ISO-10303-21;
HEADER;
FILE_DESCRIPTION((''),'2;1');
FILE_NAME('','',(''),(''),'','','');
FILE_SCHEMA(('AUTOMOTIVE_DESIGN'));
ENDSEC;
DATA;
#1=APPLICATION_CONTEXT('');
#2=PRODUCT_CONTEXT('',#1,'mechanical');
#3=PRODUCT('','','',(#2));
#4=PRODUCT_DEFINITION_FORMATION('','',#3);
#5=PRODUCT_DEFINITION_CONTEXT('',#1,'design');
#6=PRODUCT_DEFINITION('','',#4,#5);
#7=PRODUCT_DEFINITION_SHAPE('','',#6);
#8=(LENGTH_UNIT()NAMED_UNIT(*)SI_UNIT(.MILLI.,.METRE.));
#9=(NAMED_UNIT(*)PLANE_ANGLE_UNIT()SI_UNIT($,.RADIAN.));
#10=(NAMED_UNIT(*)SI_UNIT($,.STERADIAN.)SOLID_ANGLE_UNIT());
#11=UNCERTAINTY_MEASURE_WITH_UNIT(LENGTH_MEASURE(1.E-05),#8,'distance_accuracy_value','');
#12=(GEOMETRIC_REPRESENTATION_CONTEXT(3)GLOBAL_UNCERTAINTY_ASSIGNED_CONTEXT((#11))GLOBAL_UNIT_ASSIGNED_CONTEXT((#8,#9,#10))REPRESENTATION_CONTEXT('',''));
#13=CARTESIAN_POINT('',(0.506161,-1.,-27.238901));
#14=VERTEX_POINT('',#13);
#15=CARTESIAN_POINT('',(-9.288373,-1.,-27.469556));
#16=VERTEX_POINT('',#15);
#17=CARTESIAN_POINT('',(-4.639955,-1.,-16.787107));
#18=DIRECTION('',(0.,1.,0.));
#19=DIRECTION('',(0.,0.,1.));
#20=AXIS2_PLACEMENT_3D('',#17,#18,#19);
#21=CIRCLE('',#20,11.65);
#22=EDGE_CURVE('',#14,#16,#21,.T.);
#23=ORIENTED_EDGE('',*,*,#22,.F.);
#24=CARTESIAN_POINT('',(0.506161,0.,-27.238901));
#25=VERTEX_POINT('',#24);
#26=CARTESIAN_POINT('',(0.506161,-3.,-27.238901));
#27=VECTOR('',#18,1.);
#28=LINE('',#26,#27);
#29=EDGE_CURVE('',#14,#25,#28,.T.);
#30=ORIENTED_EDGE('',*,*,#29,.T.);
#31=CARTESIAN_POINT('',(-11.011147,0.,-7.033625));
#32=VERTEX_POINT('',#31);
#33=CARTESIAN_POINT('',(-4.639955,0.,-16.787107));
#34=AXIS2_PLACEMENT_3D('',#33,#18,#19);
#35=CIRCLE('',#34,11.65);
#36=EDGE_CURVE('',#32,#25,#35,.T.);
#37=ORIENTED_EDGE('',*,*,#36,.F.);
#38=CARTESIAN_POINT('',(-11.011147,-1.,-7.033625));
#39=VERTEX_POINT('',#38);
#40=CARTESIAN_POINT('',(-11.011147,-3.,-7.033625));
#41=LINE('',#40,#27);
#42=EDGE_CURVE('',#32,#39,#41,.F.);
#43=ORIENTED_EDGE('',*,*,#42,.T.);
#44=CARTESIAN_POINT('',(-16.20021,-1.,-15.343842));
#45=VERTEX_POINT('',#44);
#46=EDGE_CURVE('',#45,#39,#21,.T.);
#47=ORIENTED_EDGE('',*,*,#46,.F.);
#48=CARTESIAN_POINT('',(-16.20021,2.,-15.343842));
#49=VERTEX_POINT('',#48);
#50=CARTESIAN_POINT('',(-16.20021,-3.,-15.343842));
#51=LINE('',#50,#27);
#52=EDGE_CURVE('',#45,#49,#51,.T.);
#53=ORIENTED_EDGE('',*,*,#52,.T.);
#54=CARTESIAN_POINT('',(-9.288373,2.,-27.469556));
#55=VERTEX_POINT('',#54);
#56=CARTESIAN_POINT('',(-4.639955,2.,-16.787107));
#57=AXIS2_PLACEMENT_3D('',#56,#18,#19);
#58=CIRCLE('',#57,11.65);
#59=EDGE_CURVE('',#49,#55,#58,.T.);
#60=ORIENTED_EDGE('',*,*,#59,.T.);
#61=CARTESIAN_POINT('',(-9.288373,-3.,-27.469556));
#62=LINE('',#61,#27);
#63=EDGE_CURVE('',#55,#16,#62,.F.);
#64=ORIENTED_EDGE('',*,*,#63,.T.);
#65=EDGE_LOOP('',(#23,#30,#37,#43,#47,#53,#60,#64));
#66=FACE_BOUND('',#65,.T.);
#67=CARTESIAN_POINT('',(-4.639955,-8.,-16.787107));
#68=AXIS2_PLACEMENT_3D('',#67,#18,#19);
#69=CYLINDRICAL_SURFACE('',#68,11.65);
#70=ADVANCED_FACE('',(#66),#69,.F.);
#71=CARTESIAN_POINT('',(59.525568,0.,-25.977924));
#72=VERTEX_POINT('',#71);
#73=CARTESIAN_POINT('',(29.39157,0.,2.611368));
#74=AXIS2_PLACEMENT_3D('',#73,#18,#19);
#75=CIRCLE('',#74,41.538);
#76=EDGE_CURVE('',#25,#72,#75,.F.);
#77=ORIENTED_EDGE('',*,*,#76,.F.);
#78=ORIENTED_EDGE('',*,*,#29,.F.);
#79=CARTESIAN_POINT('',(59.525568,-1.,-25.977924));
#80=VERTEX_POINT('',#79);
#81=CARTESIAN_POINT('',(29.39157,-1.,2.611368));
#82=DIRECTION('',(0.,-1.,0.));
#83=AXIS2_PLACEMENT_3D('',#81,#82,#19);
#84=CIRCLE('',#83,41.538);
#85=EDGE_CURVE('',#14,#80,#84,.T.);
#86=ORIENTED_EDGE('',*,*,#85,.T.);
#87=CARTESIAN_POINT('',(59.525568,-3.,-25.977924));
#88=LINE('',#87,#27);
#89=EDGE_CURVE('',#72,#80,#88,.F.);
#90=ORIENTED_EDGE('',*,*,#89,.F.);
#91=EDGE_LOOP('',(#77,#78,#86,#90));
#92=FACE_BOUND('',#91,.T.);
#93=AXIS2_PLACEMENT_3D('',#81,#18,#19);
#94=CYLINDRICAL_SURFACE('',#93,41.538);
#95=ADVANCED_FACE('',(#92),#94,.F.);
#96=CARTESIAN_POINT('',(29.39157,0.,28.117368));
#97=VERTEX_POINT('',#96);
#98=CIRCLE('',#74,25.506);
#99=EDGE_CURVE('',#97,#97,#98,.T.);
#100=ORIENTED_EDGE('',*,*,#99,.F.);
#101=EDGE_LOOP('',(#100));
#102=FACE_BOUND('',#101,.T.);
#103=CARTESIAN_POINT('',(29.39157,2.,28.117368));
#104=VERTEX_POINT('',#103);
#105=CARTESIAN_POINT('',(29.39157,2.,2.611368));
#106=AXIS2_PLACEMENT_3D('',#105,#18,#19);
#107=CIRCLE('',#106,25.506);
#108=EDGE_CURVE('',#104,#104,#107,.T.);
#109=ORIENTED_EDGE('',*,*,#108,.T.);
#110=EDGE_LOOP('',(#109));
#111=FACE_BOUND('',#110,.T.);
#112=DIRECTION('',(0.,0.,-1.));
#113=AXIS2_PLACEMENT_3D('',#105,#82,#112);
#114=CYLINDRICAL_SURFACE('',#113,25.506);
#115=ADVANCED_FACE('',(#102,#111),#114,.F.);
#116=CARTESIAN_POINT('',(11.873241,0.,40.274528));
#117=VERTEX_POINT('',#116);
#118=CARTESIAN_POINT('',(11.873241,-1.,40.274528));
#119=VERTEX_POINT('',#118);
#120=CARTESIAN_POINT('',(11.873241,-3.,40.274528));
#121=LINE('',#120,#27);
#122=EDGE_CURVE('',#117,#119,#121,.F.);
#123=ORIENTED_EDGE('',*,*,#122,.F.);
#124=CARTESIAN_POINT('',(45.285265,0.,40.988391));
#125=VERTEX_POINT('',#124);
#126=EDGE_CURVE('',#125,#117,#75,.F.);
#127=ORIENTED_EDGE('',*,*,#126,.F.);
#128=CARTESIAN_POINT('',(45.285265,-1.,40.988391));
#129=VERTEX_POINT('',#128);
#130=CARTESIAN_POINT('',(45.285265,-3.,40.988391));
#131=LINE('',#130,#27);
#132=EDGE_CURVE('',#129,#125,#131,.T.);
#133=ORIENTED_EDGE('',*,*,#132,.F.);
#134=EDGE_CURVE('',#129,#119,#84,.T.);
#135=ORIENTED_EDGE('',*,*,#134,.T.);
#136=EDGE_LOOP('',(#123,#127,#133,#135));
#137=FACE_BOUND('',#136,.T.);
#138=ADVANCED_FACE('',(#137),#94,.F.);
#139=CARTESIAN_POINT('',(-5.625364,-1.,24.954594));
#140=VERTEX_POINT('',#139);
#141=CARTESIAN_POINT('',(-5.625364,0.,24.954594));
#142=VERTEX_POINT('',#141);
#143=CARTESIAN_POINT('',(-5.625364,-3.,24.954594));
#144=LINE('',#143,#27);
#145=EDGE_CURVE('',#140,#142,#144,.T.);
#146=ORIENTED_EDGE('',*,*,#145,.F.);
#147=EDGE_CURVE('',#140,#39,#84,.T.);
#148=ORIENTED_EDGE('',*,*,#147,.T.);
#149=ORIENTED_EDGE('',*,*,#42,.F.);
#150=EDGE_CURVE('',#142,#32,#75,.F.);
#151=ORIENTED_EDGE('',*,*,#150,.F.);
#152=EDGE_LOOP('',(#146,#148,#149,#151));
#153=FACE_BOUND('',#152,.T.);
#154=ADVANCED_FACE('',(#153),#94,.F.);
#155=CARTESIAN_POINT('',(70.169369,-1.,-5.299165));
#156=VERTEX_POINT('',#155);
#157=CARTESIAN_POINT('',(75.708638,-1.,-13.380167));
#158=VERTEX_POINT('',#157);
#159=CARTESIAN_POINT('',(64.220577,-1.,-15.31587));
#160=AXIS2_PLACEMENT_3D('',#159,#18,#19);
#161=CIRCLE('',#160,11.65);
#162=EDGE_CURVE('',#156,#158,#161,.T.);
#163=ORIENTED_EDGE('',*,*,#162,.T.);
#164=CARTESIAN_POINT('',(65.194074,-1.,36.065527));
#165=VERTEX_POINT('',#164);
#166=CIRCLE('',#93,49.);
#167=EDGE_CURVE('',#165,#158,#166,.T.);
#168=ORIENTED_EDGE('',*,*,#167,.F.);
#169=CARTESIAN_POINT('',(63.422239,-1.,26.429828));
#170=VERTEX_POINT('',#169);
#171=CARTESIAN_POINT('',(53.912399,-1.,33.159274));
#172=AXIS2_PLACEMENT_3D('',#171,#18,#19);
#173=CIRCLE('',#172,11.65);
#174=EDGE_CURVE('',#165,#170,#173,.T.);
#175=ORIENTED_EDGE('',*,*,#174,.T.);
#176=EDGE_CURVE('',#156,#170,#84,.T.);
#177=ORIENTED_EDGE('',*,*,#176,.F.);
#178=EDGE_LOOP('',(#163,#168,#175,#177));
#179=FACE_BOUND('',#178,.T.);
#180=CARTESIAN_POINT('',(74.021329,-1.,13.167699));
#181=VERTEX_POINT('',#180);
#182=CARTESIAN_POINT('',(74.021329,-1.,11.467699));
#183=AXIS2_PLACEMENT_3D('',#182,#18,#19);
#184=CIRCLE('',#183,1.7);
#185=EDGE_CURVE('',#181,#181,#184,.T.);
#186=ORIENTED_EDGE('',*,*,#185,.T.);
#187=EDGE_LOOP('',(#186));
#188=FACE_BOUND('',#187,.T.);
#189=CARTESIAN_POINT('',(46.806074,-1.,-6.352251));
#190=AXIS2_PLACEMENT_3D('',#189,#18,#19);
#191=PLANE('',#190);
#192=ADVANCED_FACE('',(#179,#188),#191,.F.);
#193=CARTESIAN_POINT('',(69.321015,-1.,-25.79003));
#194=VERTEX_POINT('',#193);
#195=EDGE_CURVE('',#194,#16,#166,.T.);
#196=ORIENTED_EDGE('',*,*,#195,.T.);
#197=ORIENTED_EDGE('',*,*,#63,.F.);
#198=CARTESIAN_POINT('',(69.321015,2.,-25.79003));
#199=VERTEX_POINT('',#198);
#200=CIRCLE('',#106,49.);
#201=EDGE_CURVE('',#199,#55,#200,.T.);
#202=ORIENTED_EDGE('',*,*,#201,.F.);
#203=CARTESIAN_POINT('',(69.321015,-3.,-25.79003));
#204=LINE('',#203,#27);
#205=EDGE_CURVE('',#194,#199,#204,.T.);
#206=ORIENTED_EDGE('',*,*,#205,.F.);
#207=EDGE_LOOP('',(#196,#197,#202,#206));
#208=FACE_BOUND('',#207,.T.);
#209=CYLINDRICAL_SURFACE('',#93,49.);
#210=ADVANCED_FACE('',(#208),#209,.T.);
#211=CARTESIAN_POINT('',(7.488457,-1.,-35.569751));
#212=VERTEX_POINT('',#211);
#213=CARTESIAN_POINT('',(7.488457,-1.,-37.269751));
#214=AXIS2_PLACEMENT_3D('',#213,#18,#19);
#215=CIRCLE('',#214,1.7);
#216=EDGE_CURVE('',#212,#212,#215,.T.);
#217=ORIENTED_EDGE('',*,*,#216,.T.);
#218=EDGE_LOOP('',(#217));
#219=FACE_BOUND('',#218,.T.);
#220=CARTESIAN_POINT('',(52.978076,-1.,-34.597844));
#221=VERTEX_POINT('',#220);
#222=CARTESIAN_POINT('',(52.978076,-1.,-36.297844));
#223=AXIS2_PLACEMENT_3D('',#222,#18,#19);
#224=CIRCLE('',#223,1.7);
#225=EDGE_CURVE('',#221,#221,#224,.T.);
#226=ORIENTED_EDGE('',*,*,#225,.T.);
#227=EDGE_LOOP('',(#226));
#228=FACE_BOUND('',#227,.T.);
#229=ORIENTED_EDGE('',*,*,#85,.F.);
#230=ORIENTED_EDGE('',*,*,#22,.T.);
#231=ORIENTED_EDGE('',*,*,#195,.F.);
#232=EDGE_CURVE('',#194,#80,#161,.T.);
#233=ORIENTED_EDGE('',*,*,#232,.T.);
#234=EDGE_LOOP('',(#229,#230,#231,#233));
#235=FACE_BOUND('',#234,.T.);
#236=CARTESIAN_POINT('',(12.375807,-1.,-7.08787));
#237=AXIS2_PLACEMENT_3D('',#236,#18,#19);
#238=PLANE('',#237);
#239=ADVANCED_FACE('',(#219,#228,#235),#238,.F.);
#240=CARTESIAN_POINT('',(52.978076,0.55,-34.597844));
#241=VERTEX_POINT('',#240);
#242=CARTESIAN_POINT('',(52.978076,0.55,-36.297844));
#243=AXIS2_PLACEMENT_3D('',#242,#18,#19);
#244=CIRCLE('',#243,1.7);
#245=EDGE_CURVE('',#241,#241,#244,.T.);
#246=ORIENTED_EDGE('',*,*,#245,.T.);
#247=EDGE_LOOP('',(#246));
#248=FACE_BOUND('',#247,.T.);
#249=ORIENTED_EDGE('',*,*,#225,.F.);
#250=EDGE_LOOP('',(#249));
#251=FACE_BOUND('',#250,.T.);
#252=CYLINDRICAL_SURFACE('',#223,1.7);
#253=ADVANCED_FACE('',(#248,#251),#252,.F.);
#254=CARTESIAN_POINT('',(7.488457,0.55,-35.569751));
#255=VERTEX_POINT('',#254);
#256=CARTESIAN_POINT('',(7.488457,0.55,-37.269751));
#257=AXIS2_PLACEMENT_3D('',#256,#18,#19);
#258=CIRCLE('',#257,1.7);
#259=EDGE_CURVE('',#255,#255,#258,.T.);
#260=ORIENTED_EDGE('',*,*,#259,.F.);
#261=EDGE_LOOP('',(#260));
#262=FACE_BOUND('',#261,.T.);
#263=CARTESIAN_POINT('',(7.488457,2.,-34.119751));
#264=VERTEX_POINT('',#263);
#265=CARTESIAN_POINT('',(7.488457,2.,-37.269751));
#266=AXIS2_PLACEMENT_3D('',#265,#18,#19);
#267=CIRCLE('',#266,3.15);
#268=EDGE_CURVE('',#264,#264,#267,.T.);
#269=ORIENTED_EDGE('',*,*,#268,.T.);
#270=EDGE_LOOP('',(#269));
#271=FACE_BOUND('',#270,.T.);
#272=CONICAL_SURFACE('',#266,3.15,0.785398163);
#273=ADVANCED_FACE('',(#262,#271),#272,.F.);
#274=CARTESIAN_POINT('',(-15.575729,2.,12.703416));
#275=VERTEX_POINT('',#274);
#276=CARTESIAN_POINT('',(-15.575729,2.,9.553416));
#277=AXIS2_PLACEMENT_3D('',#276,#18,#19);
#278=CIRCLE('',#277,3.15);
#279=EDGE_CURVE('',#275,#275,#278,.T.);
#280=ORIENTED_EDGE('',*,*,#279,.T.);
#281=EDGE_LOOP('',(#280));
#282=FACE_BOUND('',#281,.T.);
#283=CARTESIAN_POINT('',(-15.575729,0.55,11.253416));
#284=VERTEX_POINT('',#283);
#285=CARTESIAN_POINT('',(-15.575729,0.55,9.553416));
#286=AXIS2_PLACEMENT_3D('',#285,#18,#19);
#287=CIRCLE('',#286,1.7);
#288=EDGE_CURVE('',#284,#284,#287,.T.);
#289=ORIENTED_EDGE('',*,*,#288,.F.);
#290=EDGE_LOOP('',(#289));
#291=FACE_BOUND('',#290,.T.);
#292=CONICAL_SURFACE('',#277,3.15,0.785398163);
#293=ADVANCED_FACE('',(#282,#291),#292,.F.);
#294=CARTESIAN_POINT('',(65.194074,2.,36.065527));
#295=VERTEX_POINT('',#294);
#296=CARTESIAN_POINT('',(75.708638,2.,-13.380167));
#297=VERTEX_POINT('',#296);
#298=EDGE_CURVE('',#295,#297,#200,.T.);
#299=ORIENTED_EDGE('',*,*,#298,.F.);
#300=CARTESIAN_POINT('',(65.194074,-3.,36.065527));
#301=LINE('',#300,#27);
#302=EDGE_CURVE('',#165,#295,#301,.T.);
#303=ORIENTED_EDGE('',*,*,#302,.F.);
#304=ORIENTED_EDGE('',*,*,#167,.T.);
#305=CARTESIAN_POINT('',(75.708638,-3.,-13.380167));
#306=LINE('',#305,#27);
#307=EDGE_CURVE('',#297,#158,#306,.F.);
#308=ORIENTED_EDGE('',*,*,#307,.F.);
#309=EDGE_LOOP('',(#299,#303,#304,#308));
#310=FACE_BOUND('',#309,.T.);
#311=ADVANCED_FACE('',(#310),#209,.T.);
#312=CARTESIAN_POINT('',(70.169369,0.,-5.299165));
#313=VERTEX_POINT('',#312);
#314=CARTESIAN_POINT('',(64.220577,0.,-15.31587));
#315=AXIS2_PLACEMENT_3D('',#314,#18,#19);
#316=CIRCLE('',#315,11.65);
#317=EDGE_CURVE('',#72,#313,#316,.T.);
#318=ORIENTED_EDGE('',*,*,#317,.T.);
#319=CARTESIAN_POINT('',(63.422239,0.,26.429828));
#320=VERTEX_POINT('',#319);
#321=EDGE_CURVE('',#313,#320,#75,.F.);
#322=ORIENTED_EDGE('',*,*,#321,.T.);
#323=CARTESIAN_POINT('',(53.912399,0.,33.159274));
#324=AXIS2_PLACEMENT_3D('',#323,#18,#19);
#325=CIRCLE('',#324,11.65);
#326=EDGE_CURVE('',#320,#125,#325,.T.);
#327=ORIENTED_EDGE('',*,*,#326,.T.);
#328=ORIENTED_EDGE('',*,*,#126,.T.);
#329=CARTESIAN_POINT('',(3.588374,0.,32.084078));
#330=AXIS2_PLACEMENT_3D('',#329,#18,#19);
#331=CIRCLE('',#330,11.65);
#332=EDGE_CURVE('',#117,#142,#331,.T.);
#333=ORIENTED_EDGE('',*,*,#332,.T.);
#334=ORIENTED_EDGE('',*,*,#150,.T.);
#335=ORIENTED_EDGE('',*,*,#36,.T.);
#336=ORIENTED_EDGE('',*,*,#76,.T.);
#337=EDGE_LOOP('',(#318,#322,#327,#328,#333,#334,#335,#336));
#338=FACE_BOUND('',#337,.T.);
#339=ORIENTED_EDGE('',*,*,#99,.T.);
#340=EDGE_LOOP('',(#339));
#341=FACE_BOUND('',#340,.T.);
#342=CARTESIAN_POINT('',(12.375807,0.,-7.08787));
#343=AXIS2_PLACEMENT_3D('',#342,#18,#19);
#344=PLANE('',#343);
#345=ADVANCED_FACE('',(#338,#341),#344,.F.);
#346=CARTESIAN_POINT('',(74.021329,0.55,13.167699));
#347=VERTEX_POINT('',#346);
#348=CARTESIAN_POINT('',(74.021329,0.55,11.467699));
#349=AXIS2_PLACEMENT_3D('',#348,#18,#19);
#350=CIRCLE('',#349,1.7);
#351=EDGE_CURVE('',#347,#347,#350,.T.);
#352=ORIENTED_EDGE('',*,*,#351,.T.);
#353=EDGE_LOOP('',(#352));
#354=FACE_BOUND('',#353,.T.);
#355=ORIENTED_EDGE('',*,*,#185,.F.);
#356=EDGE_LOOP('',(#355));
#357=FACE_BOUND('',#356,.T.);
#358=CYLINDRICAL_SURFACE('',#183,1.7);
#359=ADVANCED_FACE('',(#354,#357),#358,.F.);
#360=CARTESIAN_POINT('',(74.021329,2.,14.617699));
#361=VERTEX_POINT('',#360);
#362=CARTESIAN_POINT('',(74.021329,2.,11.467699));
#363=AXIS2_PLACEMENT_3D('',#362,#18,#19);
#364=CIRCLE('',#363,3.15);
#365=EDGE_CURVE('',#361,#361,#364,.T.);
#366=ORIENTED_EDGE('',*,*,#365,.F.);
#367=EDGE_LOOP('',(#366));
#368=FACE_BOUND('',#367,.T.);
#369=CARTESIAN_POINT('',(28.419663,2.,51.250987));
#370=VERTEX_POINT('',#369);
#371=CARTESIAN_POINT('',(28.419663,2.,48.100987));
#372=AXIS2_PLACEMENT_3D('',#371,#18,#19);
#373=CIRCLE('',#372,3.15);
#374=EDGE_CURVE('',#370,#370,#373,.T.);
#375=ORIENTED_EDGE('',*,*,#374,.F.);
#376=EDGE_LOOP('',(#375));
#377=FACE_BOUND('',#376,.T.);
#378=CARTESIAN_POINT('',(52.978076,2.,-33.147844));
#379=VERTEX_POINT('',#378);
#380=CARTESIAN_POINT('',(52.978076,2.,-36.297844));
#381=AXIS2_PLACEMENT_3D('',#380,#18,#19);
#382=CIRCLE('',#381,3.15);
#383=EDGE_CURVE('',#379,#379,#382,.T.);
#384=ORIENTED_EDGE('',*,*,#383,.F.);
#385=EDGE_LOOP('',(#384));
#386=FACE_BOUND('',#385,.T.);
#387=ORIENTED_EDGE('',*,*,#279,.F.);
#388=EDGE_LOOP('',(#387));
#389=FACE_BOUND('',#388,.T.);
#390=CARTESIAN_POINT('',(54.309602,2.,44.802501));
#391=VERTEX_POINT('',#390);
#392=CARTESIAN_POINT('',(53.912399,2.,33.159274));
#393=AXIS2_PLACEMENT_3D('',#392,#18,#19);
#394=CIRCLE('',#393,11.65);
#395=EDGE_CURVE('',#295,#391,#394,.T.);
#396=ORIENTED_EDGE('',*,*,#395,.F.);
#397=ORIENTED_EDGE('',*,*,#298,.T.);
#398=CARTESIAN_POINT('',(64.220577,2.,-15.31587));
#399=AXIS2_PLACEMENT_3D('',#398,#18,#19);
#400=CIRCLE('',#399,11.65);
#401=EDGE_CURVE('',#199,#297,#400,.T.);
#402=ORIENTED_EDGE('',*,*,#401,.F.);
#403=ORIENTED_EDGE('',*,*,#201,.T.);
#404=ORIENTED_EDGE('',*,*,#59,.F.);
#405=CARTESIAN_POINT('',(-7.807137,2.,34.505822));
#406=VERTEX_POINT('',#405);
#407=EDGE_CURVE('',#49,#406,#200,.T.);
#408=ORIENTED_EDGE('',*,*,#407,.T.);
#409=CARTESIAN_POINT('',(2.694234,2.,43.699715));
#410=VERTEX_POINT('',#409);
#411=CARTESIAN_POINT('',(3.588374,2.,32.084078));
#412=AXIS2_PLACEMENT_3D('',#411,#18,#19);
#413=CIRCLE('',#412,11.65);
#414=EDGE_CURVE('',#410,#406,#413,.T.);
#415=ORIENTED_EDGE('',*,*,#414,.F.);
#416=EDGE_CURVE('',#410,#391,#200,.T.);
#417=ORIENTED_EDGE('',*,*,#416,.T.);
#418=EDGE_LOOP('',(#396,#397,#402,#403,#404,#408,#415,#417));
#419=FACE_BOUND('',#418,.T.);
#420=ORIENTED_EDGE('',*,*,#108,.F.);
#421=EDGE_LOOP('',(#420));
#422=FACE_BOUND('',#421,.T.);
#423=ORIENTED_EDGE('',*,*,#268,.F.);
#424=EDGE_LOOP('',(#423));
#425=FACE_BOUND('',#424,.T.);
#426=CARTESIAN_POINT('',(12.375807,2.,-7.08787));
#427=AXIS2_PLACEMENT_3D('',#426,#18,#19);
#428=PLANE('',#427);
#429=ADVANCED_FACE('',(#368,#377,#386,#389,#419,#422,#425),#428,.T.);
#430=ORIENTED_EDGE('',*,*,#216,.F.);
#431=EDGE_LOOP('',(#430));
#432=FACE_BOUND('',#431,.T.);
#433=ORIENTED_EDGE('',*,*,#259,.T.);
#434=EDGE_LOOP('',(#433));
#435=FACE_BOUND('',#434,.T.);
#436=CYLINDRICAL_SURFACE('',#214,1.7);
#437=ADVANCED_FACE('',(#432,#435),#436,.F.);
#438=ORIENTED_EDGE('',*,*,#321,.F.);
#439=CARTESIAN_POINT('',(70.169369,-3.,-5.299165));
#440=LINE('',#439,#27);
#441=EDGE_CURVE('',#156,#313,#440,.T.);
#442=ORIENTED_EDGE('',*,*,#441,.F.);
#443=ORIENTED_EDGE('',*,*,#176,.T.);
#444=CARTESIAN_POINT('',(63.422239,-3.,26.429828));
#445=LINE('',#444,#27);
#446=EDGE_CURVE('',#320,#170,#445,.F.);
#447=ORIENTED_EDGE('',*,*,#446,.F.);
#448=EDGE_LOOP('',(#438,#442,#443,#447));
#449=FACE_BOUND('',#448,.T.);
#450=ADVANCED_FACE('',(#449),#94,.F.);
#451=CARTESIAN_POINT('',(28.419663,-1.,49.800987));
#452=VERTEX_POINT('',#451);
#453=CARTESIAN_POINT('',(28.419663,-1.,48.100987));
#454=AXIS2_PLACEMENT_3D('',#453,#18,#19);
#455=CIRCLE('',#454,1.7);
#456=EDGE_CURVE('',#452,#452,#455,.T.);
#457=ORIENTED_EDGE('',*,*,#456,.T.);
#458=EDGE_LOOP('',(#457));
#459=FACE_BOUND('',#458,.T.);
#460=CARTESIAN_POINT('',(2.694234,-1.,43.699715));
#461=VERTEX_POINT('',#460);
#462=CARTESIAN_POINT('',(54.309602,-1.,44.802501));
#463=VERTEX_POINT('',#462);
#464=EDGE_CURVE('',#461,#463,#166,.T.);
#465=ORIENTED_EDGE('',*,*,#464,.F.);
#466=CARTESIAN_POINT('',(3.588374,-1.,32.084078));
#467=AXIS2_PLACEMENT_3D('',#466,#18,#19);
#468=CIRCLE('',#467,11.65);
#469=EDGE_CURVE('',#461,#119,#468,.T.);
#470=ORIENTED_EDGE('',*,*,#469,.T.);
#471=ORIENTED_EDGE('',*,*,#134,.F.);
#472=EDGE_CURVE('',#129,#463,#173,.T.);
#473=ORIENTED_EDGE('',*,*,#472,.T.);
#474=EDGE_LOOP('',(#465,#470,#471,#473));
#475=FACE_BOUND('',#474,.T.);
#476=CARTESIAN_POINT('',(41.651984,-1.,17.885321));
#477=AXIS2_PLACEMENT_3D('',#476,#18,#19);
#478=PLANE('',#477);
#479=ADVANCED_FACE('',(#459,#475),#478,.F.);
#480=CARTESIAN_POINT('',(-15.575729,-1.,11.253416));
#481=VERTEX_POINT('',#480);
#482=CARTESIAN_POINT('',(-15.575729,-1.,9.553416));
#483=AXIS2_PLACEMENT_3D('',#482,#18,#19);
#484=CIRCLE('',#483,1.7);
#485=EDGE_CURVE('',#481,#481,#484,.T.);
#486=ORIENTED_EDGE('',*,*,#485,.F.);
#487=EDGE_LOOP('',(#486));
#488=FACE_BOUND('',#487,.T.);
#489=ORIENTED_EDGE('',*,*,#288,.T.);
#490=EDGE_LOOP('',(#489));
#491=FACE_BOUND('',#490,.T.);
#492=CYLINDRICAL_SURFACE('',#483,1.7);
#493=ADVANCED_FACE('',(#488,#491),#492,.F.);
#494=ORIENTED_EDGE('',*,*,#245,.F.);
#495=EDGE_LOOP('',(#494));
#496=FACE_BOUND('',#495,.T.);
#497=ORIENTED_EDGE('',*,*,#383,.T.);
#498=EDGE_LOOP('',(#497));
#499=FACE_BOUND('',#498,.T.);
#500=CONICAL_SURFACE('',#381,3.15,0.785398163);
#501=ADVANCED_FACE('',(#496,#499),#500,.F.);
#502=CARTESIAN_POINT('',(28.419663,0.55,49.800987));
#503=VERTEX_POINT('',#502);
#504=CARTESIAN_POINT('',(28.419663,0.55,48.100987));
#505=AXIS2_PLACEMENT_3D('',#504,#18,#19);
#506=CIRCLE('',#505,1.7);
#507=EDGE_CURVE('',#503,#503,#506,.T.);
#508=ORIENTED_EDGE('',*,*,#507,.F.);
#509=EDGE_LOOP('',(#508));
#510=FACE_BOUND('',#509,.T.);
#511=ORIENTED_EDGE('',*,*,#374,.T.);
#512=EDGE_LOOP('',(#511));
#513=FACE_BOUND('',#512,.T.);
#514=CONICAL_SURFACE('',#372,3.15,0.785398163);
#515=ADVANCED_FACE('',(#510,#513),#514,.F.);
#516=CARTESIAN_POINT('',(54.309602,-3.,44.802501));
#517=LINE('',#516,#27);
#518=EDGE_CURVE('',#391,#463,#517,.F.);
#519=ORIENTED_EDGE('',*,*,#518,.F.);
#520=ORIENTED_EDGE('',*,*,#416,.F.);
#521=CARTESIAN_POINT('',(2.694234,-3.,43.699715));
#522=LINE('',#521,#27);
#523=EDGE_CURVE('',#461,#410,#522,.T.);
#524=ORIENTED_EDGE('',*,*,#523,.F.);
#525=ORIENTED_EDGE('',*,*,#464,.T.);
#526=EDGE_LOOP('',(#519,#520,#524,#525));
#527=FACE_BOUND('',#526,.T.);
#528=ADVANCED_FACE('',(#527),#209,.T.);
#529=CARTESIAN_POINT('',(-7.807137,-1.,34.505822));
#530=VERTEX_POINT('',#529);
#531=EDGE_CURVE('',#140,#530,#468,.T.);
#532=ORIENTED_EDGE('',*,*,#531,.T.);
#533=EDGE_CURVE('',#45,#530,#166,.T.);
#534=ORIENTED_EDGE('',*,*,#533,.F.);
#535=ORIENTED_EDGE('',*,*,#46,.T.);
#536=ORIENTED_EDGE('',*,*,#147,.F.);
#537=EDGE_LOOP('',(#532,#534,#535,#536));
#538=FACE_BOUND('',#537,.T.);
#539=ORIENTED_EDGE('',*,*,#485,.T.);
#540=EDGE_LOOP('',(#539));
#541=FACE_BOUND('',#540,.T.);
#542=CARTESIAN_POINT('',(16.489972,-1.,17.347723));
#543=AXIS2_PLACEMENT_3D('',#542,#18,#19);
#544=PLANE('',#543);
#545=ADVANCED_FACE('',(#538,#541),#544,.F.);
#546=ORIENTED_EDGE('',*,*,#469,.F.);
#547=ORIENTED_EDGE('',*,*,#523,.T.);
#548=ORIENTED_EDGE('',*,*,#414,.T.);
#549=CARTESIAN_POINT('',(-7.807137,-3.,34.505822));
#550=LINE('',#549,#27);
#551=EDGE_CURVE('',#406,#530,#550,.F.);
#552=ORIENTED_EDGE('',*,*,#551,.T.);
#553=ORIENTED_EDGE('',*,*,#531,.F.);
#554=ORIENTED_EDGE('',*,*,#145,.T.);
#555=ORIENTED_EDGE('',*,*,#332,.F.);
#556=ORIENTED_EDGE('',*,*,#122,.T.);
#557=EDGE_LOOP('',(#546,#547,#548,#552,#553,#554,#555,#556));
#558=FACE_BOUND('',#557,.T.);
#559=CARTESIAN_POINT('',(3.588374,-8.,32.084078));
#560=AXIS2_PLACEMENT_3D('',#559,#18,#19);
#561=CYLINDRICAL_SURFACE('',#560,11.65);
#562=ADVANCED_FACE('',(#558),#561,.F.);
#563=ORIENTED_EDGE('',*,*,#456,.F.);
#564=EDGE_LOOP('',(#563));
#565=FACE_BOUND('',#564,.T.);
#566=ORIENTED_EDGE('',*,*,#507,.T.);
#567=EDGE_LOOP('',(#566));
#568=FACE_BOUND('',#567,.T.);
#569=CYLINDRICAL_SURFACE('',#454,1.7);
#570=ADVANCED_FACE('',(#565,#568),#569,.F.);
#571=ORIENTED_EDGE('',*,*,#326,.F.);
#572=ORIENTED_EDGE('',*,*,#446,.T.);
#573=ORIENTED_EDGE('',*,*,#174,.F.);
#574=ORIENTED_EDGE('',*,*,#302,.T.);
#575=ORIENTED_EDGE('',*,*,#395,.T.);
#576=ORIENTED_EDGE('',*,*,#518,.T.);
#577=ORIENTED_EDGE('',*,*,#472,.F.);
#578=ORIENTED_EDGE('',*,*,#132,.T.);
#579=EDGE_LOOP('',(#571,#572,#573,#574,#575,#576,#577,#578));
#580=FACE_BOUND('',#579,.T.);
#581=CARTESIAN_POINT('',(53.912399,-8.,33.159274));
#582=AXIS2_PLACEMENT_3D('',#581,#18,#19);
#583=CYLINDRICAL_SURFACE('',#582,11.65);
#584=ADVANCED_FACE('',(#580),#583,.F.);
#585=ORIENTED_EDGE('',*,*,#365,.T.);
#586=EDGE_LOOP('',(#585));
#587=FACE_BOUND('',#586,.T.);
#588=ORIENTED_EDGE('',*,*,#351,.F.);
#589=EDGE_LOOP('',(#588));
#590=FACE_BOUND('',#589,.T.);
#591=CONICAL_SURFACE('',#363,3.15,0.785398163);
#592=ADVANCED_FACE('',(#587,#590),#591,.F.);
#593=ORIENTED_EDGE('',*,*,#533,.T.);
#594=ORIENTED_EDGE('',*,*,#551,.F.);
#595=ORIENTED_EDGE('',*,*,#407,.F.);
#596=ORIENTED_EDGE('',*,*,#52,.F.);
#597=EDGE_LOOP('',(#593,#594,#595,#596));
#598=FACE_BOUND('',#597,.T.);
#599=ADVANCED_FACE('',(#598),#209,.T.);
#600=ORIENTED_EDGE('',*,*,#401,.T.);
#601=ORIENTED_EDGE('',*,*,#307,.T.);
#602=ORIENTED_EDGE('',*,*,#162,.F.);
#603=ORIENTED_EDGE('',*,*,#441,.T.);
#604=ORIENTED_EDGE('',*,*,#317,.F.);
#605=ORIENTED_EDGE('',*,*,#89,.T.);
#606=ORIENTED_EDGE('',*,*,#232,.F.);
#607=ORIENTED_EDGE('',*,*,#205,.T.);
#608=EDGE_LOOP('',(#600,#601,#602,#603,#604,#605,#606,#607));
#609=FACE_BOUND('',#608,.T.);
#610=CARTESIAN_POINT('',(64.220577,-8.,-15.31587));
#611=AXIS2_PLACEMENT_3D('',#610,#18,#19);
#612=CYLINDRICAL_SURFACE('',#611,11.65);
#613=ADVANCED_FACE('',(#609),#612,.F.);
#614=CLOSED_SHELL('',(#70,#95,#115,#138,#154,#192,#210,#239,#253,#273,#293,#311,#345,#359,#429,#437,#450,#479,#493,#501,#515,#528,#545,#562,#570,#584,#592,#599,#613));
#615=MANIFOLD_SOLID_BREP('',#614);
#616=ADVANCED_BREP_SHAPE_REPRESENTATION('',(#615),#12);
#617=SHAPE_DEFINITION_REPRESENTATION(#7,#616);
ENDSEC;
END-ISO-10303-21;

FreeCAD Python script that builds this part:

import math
import FreeCAD as App
import Part
import Sketcher
from FreeCAD import Vector
Q = App.Units.Quantity

doc = App.newDocument("Part")
body = doc.addObject("PartDesign::Body", "Body")

sketch1 = body.newObject("Sketcher::SketchObject", "Sketch")
sketch1.AttachmentSupport = (doc.getObject("XZ_Plane"), [""])
sketch1.MapMode = "FlatFace"
sketch1.addGeometry(Part.ArcOfCircle(Part.Circle(Vector(29, 3, 0), Vector(0, 0, 1), 43), math.radians(-136), math.radians(-41)), False)
sketch1.addGeometry(Part.ArcOfCircle(Part.Circle(Vector(-5, -17, 0), Vector(0, 0, 1), 11), math.radians(-71), math.radians(131)), False)
sketch1.addGeometry(Part.ArcOfCircle(Part.Circle(Vector(29, 3, 0), Vector(0, 0, 1), 43), math.radians(145), math.radians(195)), False)
sketch1.addGeometry(Part.ArcOfCircle(Part.Circle(Vector(4, 32, 0), Vector(0, 0, 1), 11), math.radians(-150), math.radians(52)), False)
sketch1.addGeometry(Part.ArcOfCircle(Part.Circle(Vector(29, 3, 0), Vector(0, 0, 1), 43), math.radians(65), math.radians(117)), False)
sketch1.addGeometry(Part.ArcOfCircle(Part.Circle(Vector(54, 33, 0), Vector(0, 0, 1), 11), math.radians(130), math.radians(332)), False)
sketch1.addGeometry(Part.ArcOfCircle(Part.Circle(Vector(29, 3, 0), Vector(0, 0, 1), 43), math.radians(-13), math.radians(37)), False)
sketch1.addGeometry(Part.ArcOfCircle(Part.Circle(Vector(64, -15, 0), Vector(0, 0, 1), 11), math.radians(52), math.radians(254)), False)
sketch1.addGeometry(Part.Circle(Vector(29, 3, 0), Vector(0, 0, 1), 26), False)
sketch1.addConstraint(Sketcher.Constraint("Coincident", 0, 1, 1, 1))
sketch1.addConstraint(Sketcher.Constraint("Coincident", 1, 2, 2, 2))
sketch1.addConstraint(Sketcher.Constraint("Coincident", 2, 1, 3, 1))
sketch1.addConstraint(Sketcher.Constraint("Coincident", 3, 2, 4, 2))
sketch1.addConstraint(Sketcher.Constraint("Coincident", 4, 1, 5, 1))
sketch1.addConstraint(Sketcher.Constraint("Coincident", 5, 2, 6, 2))
sketch1.addConstraint(Sketcher.Constraint("Coincident", 6, 1, 7, 1))
sketch1.addConstraint(Sketcher.Constraint("Coincident", 7, 2, 0, 2))
sketch1.addConstraint(Sketcher.Constraint("Coincident", 2, 3, 0, 3))
sketch1.addConstraint(Sketcher.Constraint("Coincident", 4, 3, 0, 3))
sketch1.addConstraint(Sketcher.Constraint("Coincident", 6, 3, 0, 3))
sketch1.addConstraint(Sketcher.Constraint("Coincident", 8, 3, 0, 3))
sketch1.addConstraint(Sketcher.Constraint("Equal", 0, 2))
sketch1.addConstraint(Sketcher.Constraint("Equal", 1, 3))
sketch1.addConstraint(Sketcher.Constraint("Equal", 2, 4))
sketch1.addConstraint(Sketcher.Constraint("Equal", 3, 5))
sketch1.addConstraint(Sketcher.Constraint("Equal", 4, 6))
sketch1.addConstraint(Sketcher.Constraint("Equal", 5, 7))
sketch1.addConstraint(Sketcher.Constraint("Radius", 1, 10.65))
sketch1.addConstraint(Sketcher.Constraint("Diameter", 8, 51.012))
sketch1.addConstraint(Sketcher.Constraint("Radius", 0, 42.538))
sketch1.addConstraint(Sketcher.Constraint("DistanceX", -1, 1, 5, 3, 53.912399))
sketch1.addConstraint(Sketcher.Constraint("DistanceX", -1, 1, 4, 1, 47.0557))
sketch1.addConstraint(Sketcher.Constraint("DistanceY", 4, 3, 5, 2, 25.6162))
sketch1.addConstraint(Sketcher.Constraint("DistanceY", -1, 1, 0, 3, 2.611368))
sketch1.addConstraint(Sketcher.Constraint("DistanceY", 7, 3, -1, 1, 15.31587))
sketch1.addConstraint(Sketcher.Constraint("DistanceX", 1, 2, -1, 1, 11.606251))
sketch1.addConstraint(Sketcher.Constraint("DistanceX", -1, 1, 6, 1, 70.836448))
sketch1.addConstraint(Sketcher.Constraint("DistanceY", 0, 3, 3, 3, 29.47271))
sketch1.addConstraint(Sketcher.Constraint("DistanceX", 1, 3, 3, 3, 8.228329))
sketch1.addConstraint(Sketcher.Constraint("DistanceY", 1, 3, 5, 3, 49.946381))
pad1 = body.newObject("PartDesign::Pad", "Pad")
pad1.Profile = sketch1
pad1.Length = 2
pad1.Reversed = True

sketch2 = body.newObject("Sketcher::SketchObject", "Sketch001")
sketch2.AttachmentSupport = (doc.getObject("XZ_Plane"), [""])
sketch2.MapMode = "FlatFace"
sketch2.AttachmentOffset = App.Placement(Vector(0, 0, 1), App.Rotation())
sketch2.addGeometry(Part.ArcOfCircle(Part.Circle(Vector(3.6, 32.1, 0), Vector(0, 0, 1), 10.6), math.radians(46.53), math.radians(64.93)), False)
sketch2.addGeometry(Part.ArcOfCircle(Part.Circle(Vector(29.4, 2.6, 0), Vector(0, 0, 1), 44.5), math.radians(64), math.radians(119)), False)
sketch2.addGeometry(Part.ArcOfCircle(Part.Circle(Vector(53.9, 33.2, 0), Vector(0, 0, 1), 10.6), math.radians(117.52), math.radians(135.91)), False)
sketch2.addGeometry(Part.ArcOfCircle(Part.Circle(Vector(29.4, 2.6, 0), Vector(0, 0, 1), 41.5), math.radians(66), math.radians(116)), False)
sketch2.addGeometry(Part.ArcOfCircle(Part.Circle(Vector(53.9, 33.2, 0), Vector(0, 0, 1), 10.6), math.radians(-33.42), math.radians(-15.02)), False)
sketch2.addGeometry(Part.ArcOfCircle(Part.Circle(Vector(29.4, 2.6, 0), Vector(0, 0, 1), 44.5), math.radians(-15), math.radians(39)), False)
sketch2.addGeometry(Part.ArcOfCircle(Part.Circle(Vector(64.2, -15.3, 0), Vector(0, 0, 1), 10.6), math.radians(39.03), math.radians(57.43)), False)
sketch2.addGeometry(Part.ArcOfCircle(Part.Circle(Vector(29.4, 2.6, 0), Vector(0, 0, 1), 41.5), math.radians(-12), math.radians(36)), False)
sketch2.addGeometry(Part.ArcOfCircle(Part.Circle(Vector(64.2, -15.3, 0), Vector(0, 0, 1), 10.7), math.radians(-111.9), math.radians(-93.51)), False)
sketch2.addGeometry(Part.ArcOfCircle(Part.Circle(Vector(29.4, 2.6, 0), Vector(0, 0, 1), 44.5), math.radians(-138), math.radians(-40)), False)
sketch2.addGeometry(Part.ArcOfCircle(Part.Circle(Vector(-4.6, -16.8, 0), Vector(0, 0, 1), 10.6), math.radians(-84.05), math.radians(-65.65)), False)
sketch2.addGeometry(Part.ArcOfCircle(Part.Circle(Vector(29.4, 2.6, 0), Vector(0, 0, 1), 41.5), math.radians(-136), math.radians(-42)), False)
sketch2.addGeometry(Part.ArcOfCircle(Part.Circle(Vector(3.6, 32.1, 0), Vector(0, 0, 1), 10.7), math.radians(-162.53), math.radians(-144.13)), False)
sketch2.addGeometry(Part.ArcOfCircle(Part.Circle(Vector(29.4, 2.6, 0), Vector(0, 0, 1), 41.5), math.radians(146), math.radians(195)), False)
sketch2.addGeometry(Part.ArcOfCircle(Part.Circle(Vector(-4.6, -16.8, 0), Vector(0, 0, 1), 10.6), math.radians(125.02), math.radians(143.41)), False)
sketch2.addGeometry(Part.ArcOfCircle(Part.Circle(Vector(29.4, 2.6, 0), Vector(0, 0, 1), 44.5), math.radians(144), math.radians(197)), False)
sketch2.addConstraint(Sketcher.Constraint("Coincident", 0, 2, 1, 2))
sketch2.addConstraint(Sketcher.Constraint("Coincident", 1, 1, 2, 1))
sketch2.addConstraint(Sketcher.Constraint("Coincident", 2, 2, 3, 1))
sketch2.addConstraint(Sketcher.Constraint("Coincident", 3, 2, 0, 1))
sketch2.addConstraint(Sketcher.Constraint("Coincident", 4, 2, 5, 2))
sketch2.addConstraint(Sketcher.Constraint("Coincident", 5, 1, 6, 1))
sketch2.addConstraint(Sketcher.Constraint("Coincident", 6, 2, 7, 1))
sketch2.addConstraint(Sketcher.Constraint("Coincident", 7, 2, 4, 1))
sketch2.addConstraint(Sketcher.Constraint("Coincident", 8, 2, 9, 2))
sketch2.addConstraint(Sketcher.Constraint("Coincident", 9, 1, 10, 1))
sketch2.addConstraint(Sketcher.Constraint("Coincident", 10, 2, 11, 1))
sketch2.addConstraint(Sketcher.Constraint("Coincident", 11, 2, 8, 1))
sketch2.addConstraint(Sketcher.Constraint("Coincident", 12, 2, 13, 1))
sketch2.addConstraint(Sketcher.Constraint("Coincident", 13, 2, 14, 1))
sketch2.addConstraint(Sketcher.Constraint("Coincident", 14, 2, 15, 2))
sketch2.addConstraint(Sketcher.Constraint("Coincident", 15, 1, 12, 1))
sketch2.addConstraint(Sketcher.Constraint("Coincident", 3, 3, 1, 3))
sketch2.addConstraint(Sketcher.Constraint("Coincident", 4, 3, 2, 3))
sketch2.addConstraint(Sketcher.Constraint("Coincident", 5, 3, 1, 3))
sketch2.addConstraint(Sketcher.Constraint("Coincident", 7, 3, 1, 3))
sketch2.addConstraint(Sketcher.Constraint("Coincident", 8, 3, 6, 3))
sketch2.addConstraint(Sketcher.Constraint("Coincident", 9, 3, 1, 3))
sketch2.addConstraint(Sketcher.Constraint("Coincident", 11, 3, 1, 3))
sketch2.addConstraint(Sketcher.Constraint("Coincident", 12, 3, 0, 3))
sketch2.addConstraint(Sketcher.Constraint("Coincident", 13, 3, 1, 3))
sketch2.addConstraint(Sketcher.Constraint("Coincident", 14, 3, 10, 3))
sketch2.addConstraint(Sketcher.Constraint("Coincident", 15, 3, 1, 3))
sketch2.addConstraint(Sketcher.Constraint("Equal", 0, 2))
sketch2.addConstraint(Sketcher.Constraint("Equal", 2, 4))
sketch2.addConstraint(Sketcher.Constraint("Equal", 1, 5))
sketch2.addConstraint(Sketcher.Constraint("Equal", 4, 6))
sketch2.addConstraint(Sketcher.Constraint("Equal", 3, 7))
sketch2.addConstraint(Sketcher.Constraint("Equal", 6, 8))
sketch2.addConstraint(Sketcher.Constraint("Equal", 5, 9))
sketch2.addConstraint(Sketcher.Constraint("Equal", 8, 10))
sketch2.addConstraint(Sketcher.Constraint("Equal", 7, 11))
sketch2.addConstraint(Sketcher.Constraint("Equal", 10, 12))
sketch2.addConstraint(Sketcher.Constraint("Equal", 11, 13))
sketch2.addConstraint(Sketcher.Constraint("Equal", 12, 14))
sketch2.addConstraint(Sketcher.Constraint("Equal", 9, 15))
sketch2.addConstraint(Sketcher.Constraint("Radius", 0, 10.65))
sketch2.addConstraint(Sketcher.Constraint("Radius", 1, 44.538))
sketch2.addConstraint(Sketcher.Constraint("Radius", 3, 41.538))
sketch2.addConstraint(Sketcher.Constraint("DistanceX", 7, 3, 2, 2, 16.871002))
sketch2.addConstraint(Sketcher.Constraint("DistanceX", 15, 1, 3, 2, 17.484999))
sketch2.addConstraint(Sketcher.Constraint("DistanceX", -1, 1, 2, 3, 53.912399))
sketch2.addConstraint(Sketcher.Constraint("DistanceX", 9, 1, -1, 1, 3.535199))
sketch2.addConstraint(Sketcher.Constraint("DistanceY", 10, 2, -1, 1, 26.489602))
sketch2.addConstraint(Sketcher.Constraint("DistanceX", 0, 2, 1, 1, 40.891299))
sketch2.addConstraint(Sketcher.Constraint("DistanceY", 7, 2, 4, 2, 3.105202))
sketch2.addConstraint(Sketcher.Constraint("DistanceY", 11, 2, 8, 3, 9.881202))
sketch2.addConstraint(Sketcher.Constraint("DistanceY", -1, 1, 0, 3, 32.084078))
sketch2.addConstraint(Sketcher.Constraint("DistanceY", 6, 3, -1, 1, 15.31587))
pad2 = body.newObject("PartDesign::Pad", "Pad001")
pad2.Profile = sketch2
pad2.Length = 3
pad2.Reversed = True

sketch3 = body.newObject("Sketcher::SketchObject", "Sketch002")
sketch3.AttachmentSupport = (doc.getObject("XZ_Plane"), [""])
sketch3.MapMode = "FlatFace"
sketch3.AttachmentOffset = App.Placement(Vector(0, 0, 1), App.Rotation())
sketch3.addGeometry(Part.ArcOfCircle(Part.Circle(Vector(29, 3, 0), Vector(0, 0, 1), 49), math.radians(-145), math.radians(-33)), False)
sketch3.addGeometry(Part.ArcOfCircle(Part.Circle(Vector(-5, -17, 0), Vector(0, 0, 1), 11), math.radians(-125), math.radians(-84)), False)
sketch3.addGeometry(Part.ArcOfCircle(Part.Circle(Vector(29, 3, 0), Vector(0, 0, 1), 45), math.radians(-138), math.radians(-40)), False)
sketch3.addGeometry(Part.ArcOfCircle(Part.Circle(Vector(64, -15, 0), Vector(0, 0, 1), 11), math.radians(-94), math.radians(-53)), False)
sketch3.addGeometry(Part.ArcOfCircle(Part.Circle(Vector(-5, -17, 0), Vector(0, 0, 1), 11), math.radians(143), math.radians(184)), False)
sketch3.addGeometry(Part.ArcOfCircle(Part.Circle(Vector(29, 3, 0), Vector(0, 0, 1), 49), math.radians(137), math.radians(204)), False)
sketch3.addGeometry(Part.ArcOfCircle(Part.Circle(Vector(4, 32, 0), Vector(0, 0, 1), 11), math.radians(157), math.radians(197)), False)
sketch3.addGeometry(Part.ArcOfCircle(Part.Circle(Vector(29, 3, 0), Vector(0, 0, 1), 45), math.radians(144), math.radians(197)), False)
sketch3.addGeometry(Part.ArcOfCircle(Part.Circle(Vector(29, 3, 0), Vector(0, 0, 1), 49), math.radians(-22), math.radians(0)), False)
sketch3.addGeometry(Part.ArcOfCircle(Part.Circle(Vector(64, -15, 0), Vector(0, 0, 1), 11), math.radians(-2), math.radians(39)), False)
sketch3.addGeometry(Part.ArcOfCircle(Part.Circle(Vector(29, 3, 0), Vector(0, 0, 1), 45), math.radians(-15), math.radians(39)), False)
sketch3.addGeometry(Part.ArcOfCircle(Part.Circle(Vector(54, 33, 0), Vector(0, 0, 1), 11), math.radians(-15), math.radians(26)), False)
sketch3.addGeometry(Part.ArcOfCircle(Part.Circle(Vector(29, 3, 0), Vector(0, 0, 1), 49), math.radians(0), math.radians(46)), False)
sketch3.addGeometry(Part.ArcOfCircle(Part.Circle(Vector(4, 32, 0), Vector(0, 0, 1), 11), math.radians(65), math.radians(106)), False)
sketch3.addGeometry(Part.ArcOfCircle(Part.Circle(Vector(29, 3, 0), Vector(0, 0, 1), 49), math.radians(57), math.radians(126)), False)
sketch3.addGeometry(Part.ArcOfCircle(Part.Circle(Vector(54, 33, 0), Vector(0, 0, 1), 11), math.radians(77), math.radians(118)), False)
sketch3.addGeometry(Part.ArcOfCircle(Part.Circle(Vector(29, 3, 0), Vector(0, 0, 1), 45), math.radians(64), math.radians(119)), False)
sketch3.addConstraint(Sketcher.Constraint("Coincident", 0, 1, 1, 1))
sketch3.addConstraint(Sketcher.Constraint("Coincident", 1, 2, 2, 1))
sketch3.addConstraint(Sketcher.Constraint("Coincident", 2, 2, 3, 1))
sketch3.addConstraint(Sketcher.Constraint("Coincident", 3, 2, 0, 2))
sketch3.addConstraint(Sketcher.Constraint("Coincident", 4, 2, 5, 2))
sketch3.addConstraint(Sketcher.Constraint("Coincident", 5, 1, 6, 1))
sketch3.addConstraint(Sketcher.Constraint("Coincident", 6, 2, 7, 1))
sketch3.addConstraint(Sketcher.Constraint("Coincident", 7, 2, 4, 1))
sketch3.addConstraint(Sketcher.Constraint("Coincident", 8, 1, 9, 1))
sketch3.addConstraint(Sketcher.Constraint("Coincident", 9, 2, 10, 1))
sketch3.addConstraint(Sketcher.Constraint("Coincident", 10, 2, 11, 1))
sketch3.addConstraint(Sketcher.Constraint("Coincident", 11, 2, 12, 2))
sketch3.addConstraint(Sketcher.Constraint("Tangent", 12, 1, 8, 2))
sketch3.addConstraint(Sketcher.Constraint("Coincident", 13, 2, 14, 2))
sketch3.addConstraint(Sketcher.Constraint("Coincident", 14, 1, 15, 1))
sketch3.addConstraint(Sketcher.Constraint("Coincident", 15, 2, 16, 1))
sketch3.addConstraint(Sketcher.Constraint("Coincident", 16, 2, 13, 1))
sketch3.addConstraint(Sketcher.Constraint("Coincident", 2, 3, 0, 3))
sketch3.addConstraint(Sketcher.Constraint("Coincident", 4, 3, 1, 3))
sketch3.addConstraint(Sketcher.Constraint("Coincident", 5, 3, 0, 3))
sketch3.addConstraint(Sketcher.Constraint("Coincident", 7, 3, 0, 3))
sketch3.addConstraint(Sketcher.Constraint("Coincident", 8, 3, 0, 3))
sketch3.addConstraint(Sketcher.Constraint("Coincident", 9, 3, 3, 3))
sketch3.addConstraint(Sketcher.Constraint("Coincident", 10, 3, 0, 3))
sketch3.addConstraint(Sketcher.Constraint("Coincident", 13, 3, 6, 3))
sketch3.addConstraint(Sketcher.Constraint("Coincident", 14, 3, 0, 3))
sketch3.addConstraint(Sketcher.Constraint("Coincident", 15, 3, 11, 3))
sketch3.addConstraint(Sketcher.Constraint("Coincident", 16, 3, 0, 3))
sketch3.addConstraint(Sketcher.Constraint("Equal", 1, 4))
sketch3.addConstraint(Sketcher.Constraint("Equal", 0, 5))
sketch3.addConstraint(Sketcher.Constraint("Equal", 4, 6))
sketch3.addConstraint(Sketcher.Constraint("Equal", 2, 7))
sketch3.addConstraint(Sketcher.Constraint("Equal", 5, 8))
sketch3.addConstraint(Sketcher.Constraint("Equal", 3, 9))
sketch3.addConstraint(Sketcher.Constraint("Equal", 7, 10))
sketch3.addConstraint(Sketcher.Constraint("Equal", 6, 11))
sketch3.addConstraint(Sketcher.Constraint("Equal", 8, 12))
sketch3.addConstraint(Sketcher.Constraint("Equal", 11, 13))
sketch3.addConstraint(Sketcher.Constraint("Equal", 12, 14))
sketch3.addConstraint(Sketcher.Constraint("Equal", 13, 15))
sketch3.addConstraint(Sketcher.Constraint("Equal", 10, 16))
sketch3.addConstraint(Sketcher.Constraint("Horizontal", 16, 3, 12, 1))
sketch3.addConstraint(Sketcher.Constraint("Radius", 0, 49.0))
sketch3.addConstraint(Sketcher.Constraint("Radius", 1, 10.65))
sketch3.addConstraint(Sketcher.Constraint("Radius", 2, 44.538))
sketch3.addConstraint(Sketcher.Constraint("DistanceX", -1, 1, 3, 2, 70.67))
sketch3.addConstraint(Sketcher.Constraint("DistanceY", 2, 2, -1, 1, 25.946))
sketch3.addConstraint(Sketcher.Constraint("Radius", 3, 10.650066))
sketch3.addConstraint(Sketcher.Constraint("DistanceX", -1, 1, 11, 3, 53.912399))
sketch3.addConstraint(Sketcher.Constraint("DistanceX", 1, 2, -1, 1, 3.535199))
sketch3.addConstraint(Sketcher.Constraint("DistanceX", 1, 3, 3, 3, 68.860599))
sketch3.addConstraint(Sketcher.Constraint("DistanceY", 8, 1, 8, 3, 18.250898))
sketch3.addConstraint(Sketcher.Constraint("DistanceY", 12, 1, 14, 1, 40.913899))
sketch3.addConstraint(Sketcher.Constraint("DistanceX", -1, 1, 0, 3, 29.39157))
sketch3.addConstraint(Sketcher.Constraint("DistanceY", -1, 1, 6, 2, 28.886461))
sketch3.addConstraint(Sketcher.Constraint("DistanceX", -1, 1, 16, 2, 8.100781))
pad3 = body.newObject("PartDesign::Pad", "Pad002")
pad3.Profile = sketch3
pad3.Length = 3
pad3.Reversed = True

sketch4 = body.newObject("Sketcher::SketchObject", "Sketch003")
sketch4.AttachmentSupport = (doc.getObject("XZ_Plane"), [""])
sketch4.MapMode = "FlatFace"
sketch4.AttachmentOffset = App.Placement(Vector(0, 0, -2), App.Rotation())
sketch4.addGeometry(Part.Circle(Vector(28.4, 48.1, 0), Vector(0, 0, 1), 1.7), False)
sketch4.addGeometry(Part.Circle(Vector(74, 11.5, 0), Vector(0, 0, 1), 1.7), False)
sketch4.addGeometry(Part.Circle(Vector(53, -36.3, 0), Vector(0, 0, 1), 1.7), False)
sketch4.addGeometry(Part.Circle(Vector(7.5, -37.3, 0), Vector(0, 0, 1), 1.7), False)
sketch4.addGeometry(Part.Circle(Vector(-15.6, 9.6, 0), Vector(0, 0, 1), 1.7), False)
sketch4.addConstraint(Sketcher.Constraint("Equal", 0, 1))
sketch4.addConstraint(Sketcher.Constraint("Equal", 1, 2))
sketch4.addConstraint(Sketcher.Constraint("Equal", 2, 3))
sketch4.addConstraint(Sketcher.Constraint("Equal", 3, 4))
sketch4.addConstraint(Sketcher.Constraint("Diameter", 0, 3.4))
sketch4.addConstraint(Sketcher.Constraint("DistanceY", -1, 1, 1, 3, 11.467699))
sketch4.addConstraint(Sketcher.Constraint("DistanceX", -1, 1, 1, 3, 74.021329))
sketch4.addConstraint(Sketcher.Constraint("DistanceY", 3, 3, -1, 1, 37.269751))
sketch4.addConstraint(Sketcher.Constraint("DistanceX", 4, 3, -1, 1, 15.575729))
sketch4.addConstraint(Sketcher.Constraint("DistanceY", 2, 3, 0, 3, 84.39883))
sketch4.addConstraint(Sketcher.Constraint("DistanceX", 3, 3, 2, 3, 45.489619))
sketch4.addConstraint(Sketcher.Constraint("DistanceY", 4, 3, 0, 3, 38.547571))
sketch4.addConstraint(Sketcher.Constraint("DistanceX", -1, 1, 0, 3, 28.419663))
sketch4.addConstraint(Sketcher.Constraint("DistanceY", -1, 1, 0, 3, 48.100987))
sketch4.addConstraint(Sketcher.Constraint("DistanceX", -1, 1, 2, 3, 52.978076))
pocket1 = body.newObject("PartDesign::Pocket", "Pocket")
pocket1.Profile = sketch4
pocket1.Type = "ThroughAll"
pocket1.Reversed = True

sketch5 = body.newObject("Sketcher::SketchObject", "Sketch004")
sketch5.AttachmentSupport = (doc.getObject("YZ_Plane"), [""])
sketch5.MapMode = "FlatFace"
sketch5.AttachmentOffset = App.Placement(Vector(0, 0, 7.488457), App.Rotation())
sketch5.addGeometry(Part.LineSegment(Vector(-1, -37.3, 0), Vector(2, -37.3, 0)), False)
sketch5.addGeometry(Part.LineSegment(Vector(2, -37.3, 0), Vector(2, -34.1, 0)), False)
sketch5.addGeometry(Part.LineSegment(Vector(2, -34.1, 0), Vector(0.6, -35.6, 0)), False)
sketch5.addGeometry(Part.LineSegment(Vector(0.6, -35.6, 0), Vector(-1, -35.6, 0)), False)
sketch5.addGeometry(Part.LineSegment(Vector(-1, -35.6, 0), Vector(-1, -37.3, 0)), False)
sketch5.addGeometry(Part.LineSegment(Vector(2, -37.3, 0), Vector(-1, -37.3, 0)), True)
sketch5.addConstraint(Sketcher.Constraint("Coincident", 0, 2, 1, 1))
sketch5.addConstraint(Sketcher.Constraint("Coincident", 1, 2, 2, 1))
sketch5.addConstraint(Sketcher.Constraint("Coincident", 2, 2, 3, 1))
sketch5.addConstraint(Sketcher.Constraint("Coincident", 3, 2, 4, 1))
sketch5.addConstraint(Sketcher.Constraint("Coincident", 4, 2, 0, 1))
sketch5.addConstraint(Sketcher.Constraint("Horizontal", 0))
sketch5.addConstraint(Sketcher.Constraint("Vertical", 1))
sketch5.addConstraint(Sketcher.Constraint("Horizontal", 3))
sketch5.addConstraint(Sketcher.Constraint("Vertical", 4))
sketch5.addConstraint(Sketcher.Constraint("Horizontal", 5))
sketch5.addConstraint(Sketcher.Constraint("Coincident", 5, 1, 0, 2))
sketch5.addConstraint(Sketcher.Constraint("Vertical", 3, 2, 5, 2))
sketch5.addConstraint(Sketcher.Constraint("DistanceX", 0, 1, 0, 2, 3.0))
sketch5.addConstraint(Sketcher.Constraint("Angle", 2, Q("-135 deg")))
sketch5.addConstraint(Sketcher.Constraint("DistanceY", 4, 2, 4, 1, 1.7))
sketch5.addConstraint(Sketcher.Constraint("DistanceX", -1, 1, 0, 2, 2.0))
sketch5.addConstraint(Sketcher.Constraint("DistanceX", 3, 2, 3, 1, 1.55))
sketch5.addConstraint(Sketcher.Constraint("DistanceY", 0, 2, -1, 1, 37.269751))
groove = body.newObject("PartDesign::Groove", "Groove")
groove.Profile = sketch5
groove.ReferenceAxis = (sketch5, ["Axis0"])
groove.Angle = 360
doc.recompute()

datumline = body.newObject("PartDesign::Line", "DatumLine")
datumline.Placement = App.Placement(Vector(0, 0, 0), App.Rotation(Vector(0, 0, 1), Vector(0.999771837, 0, 0.02136059)))
linearpattern = body.newObject("PartDesign::LinearPattern", "LinearPattern")
linearpattern.Originals = [groove]
linearpattern.Direction = (datumline, [""])
linearpattern.Mode = "offset"
linearpattern.Offset = 45.5
linearpattern.Occurrences = 2
body.Tip = linearpattern
doc.recompute()

datumline2 = body.newObject("PartDesign::Line", "DatumLine001")
datumline2.Placement = App.Placement(Vector(0, 0, 0), App.Rotation(Vector(0, 0, 1), Vector(0.806713213, 0, 0.590943138)))
linearpattern2 = body.newObject("PartDesign::LinearPattern", "LinearPattern001")
linearpattern2.Originals = [groove]
linearpattern2.Direction = (datumline2, [""])
linearpattern2.Mode = "offset"
linearpattern2.Offset = 82.474009
linearpattern2.Occurrences = 2
body.Tip = linearpattern2
doc.recompute()

datumline3 = body.newObject("PartDesign::Line", "DatumLine002")
datumline3.Placement = App.Placement(Vector(0, 0, 0), App.Rotation(Vector(0, 0, 1), Vector(0.238127246, 0, 0.971233965)))
linearpattern3 = body.newObject("PartDesign::LinearPattern", "LinearPattern002")
linearpattern3.Originals = [groove]
linearpattern3.Direction = (datumline3, [""])
linearpattern3.Mode = "offset"
linearpattern3.Offset = 87.89925
linearpattern3.Occurrences = 2
body.Tip = linearpattern3
doc.recompute()

datumline4 = body.newObject("PartDesign::Line", "DatumLine003")
datumline4.Placement = App.Placement(Vector(0, 0, 0), App.Rotation(Vector(0, 0, 1), Vector(-0.441881105, 0, 0.897073625)))
linearpattern4 = body.newObject("PartDesign::LinearPattern", "LinearPattern003")
linearpattern4.Originals = [groove]
linearpattern4.Direction = (datumline4, [""])
linearpattern4.Mode = "offset"
linearpattern4.Offset = 52.195456
linearpattern4.Occurrences = 2
body.Tip = linearpattern4

sketch6 = body.newObject("Sketcher::SketchObject", "Sketch005")
sketch6.AttachmentSupport = (doc.getObject("XZ_Plane"), [""])
sketch6.MapMode = "FlatFace"
sketch6.AttachmentOffset = App.Placement(Vector(0, 0, 8), App.Rotation())
sketch6.addGeometry(Part.Circle(Vector(-5, -17, 0), Vector(0, 0, 1), 12), False)
sketch6.addGeometry(Part.Circle(Vector(-5, -17, 0), Vector(0, 0, 1), 11), False)
sketch6.addGeometry(Part.Circle(Vector(64, -15, 0), Vector(0, 0, 1), 12), False)
sketch6.addGeometry(Part.Circle(Vector(64, -15, 0), Vector(0, 0, 1), 11), False)
sketch6.addGeometry(Part.Circle(Vector(54, 33, 0), Vector(0, 0, 1), 12), False)
sketch6.addGeometry(Part.Circle(Vector(54, 33, 0), Vector(0, 0, 1), 11), False)
sketch6.addGeometry(Part.Circle(Vector(4, 32, 0), Vector(0, 0, 1), 12), False)
sketch6.addGeometry(Part.Circle(Vector(4, 32, 0), Vector(0, 0, 1), 11), False)
sketch6.addConstraint(Sketcher.Constraint("Coincident", 1, 3, 0, 3))
sketch6.addConstraint(Sketcher.Constraint("Coincident", 3, 3, 2, 3))
sketch6.addConstraint(Sketcher.Constraint("Coincident", 5, 3, 4, 3))
sketch6.addConstraint(Sketcher.Constraint("Coincident", 7, 3, 6, 3))
sketch6.addConstraint(Sketcher.Constraint("Equal", 0, 2))
sketch6.addConstraint(Sketcher.Constraint("Equal", 1, 3))
sketch6.addConstraint(Sketcher.Constraint("Equal", 2, 4))
sketch6.addConstraint(Sketcher.Constraint("Equal", 3, 5))
sketch6.addConstraint(Sketcher.Constraint("Equal", 4, 6))
sketch6.addConstraint(Sketcher.Constraint("Equal", 5, 7))
sketch6.addConstraint(Sketcher.Constraint("Diameter", 0, 23.3))
sketch6.addConstraint(Sketcher.Constraint("Diameter", 1, 21.3))
sketch6.addConstraint(Sketcher.Constraint("DistanceX", -1, 1, 4, 3, 53.912399))
sketch6.addConstraint(Sketcher.Constraint("DistanceY", 2, 3, -1, 1, 15.31587))
sketch6.addConstraint(Sketcher.Constraint("DistanceX", 4, 3, 2, 3, 10.308179))
sketch6.addConstraint(Sketcher.Constraint("DistanceY", 0, 3, 4, 3, 49.946381))
sketch6.addConstraint(Sketcher.Constraint("DistanceX", 0, 3, 6, 3, 8.228329))
sketch6.addConstraint(Sketcher.Constraint("DistanceX", 0, 3, -1, 1, 4.639955))
sketch6.addConstraint(Sketcher.Constraint("DistanceY", 0, 3, -1, 1, 16.787107))
sketch6.addConstraint(Sketcher.Constraint("DistanceY", -1, 1, 6, 3, 32.084078))
pocket2 = body.newObject("PartDesign::Pocket", "Pocket001")
pocket2.Profile = sketch6
pocket2.Length = 10

doc.recompute()
